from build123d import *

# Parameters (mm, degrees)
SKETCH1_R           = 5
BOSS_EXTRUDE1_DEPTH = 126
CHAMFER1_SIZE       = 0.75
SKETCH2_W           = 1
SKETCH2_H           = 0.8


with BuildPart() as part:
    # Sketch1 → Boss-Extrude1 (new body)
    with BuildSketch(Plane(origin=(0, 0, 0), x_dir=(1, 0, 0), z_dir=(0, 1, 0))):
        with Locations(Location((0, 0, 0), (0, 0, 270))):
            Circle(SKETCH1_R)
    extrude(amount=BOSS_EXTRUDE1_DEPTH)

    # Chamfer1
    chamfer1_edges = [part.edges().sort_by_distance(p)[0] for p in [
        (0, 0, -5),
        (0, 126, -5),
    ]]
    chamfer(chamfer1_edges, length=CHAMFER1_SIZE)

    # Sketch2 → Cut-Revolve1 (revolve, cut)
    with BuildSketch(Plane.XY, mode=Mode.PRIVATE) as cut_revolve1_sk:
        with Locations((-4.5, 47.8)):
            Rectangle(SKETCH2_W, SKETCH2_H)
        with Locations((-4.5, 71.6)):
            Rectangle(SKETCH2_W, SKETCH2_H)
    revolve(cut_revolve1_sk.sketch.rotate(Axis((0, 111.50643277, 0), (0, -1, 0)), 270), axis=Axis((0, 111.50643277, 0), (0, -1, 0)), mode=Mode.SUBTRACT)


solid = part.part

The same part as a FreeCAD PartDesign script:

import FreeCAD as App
import Part
import Sketcher
Q = App.Units.Quantity


def edges_at(feature, points):
    """Names of the edges that pass closest to the given points."""
    edges = feature.Shape.Edges
    near = lambda p: min(range(len(edges)), key=lambda i: edges[i].distToShape(Part.Vertex(*p))[0])
    return sorted({f"Edge{near(p) + 1}" for p in points})

doc = App.newDocument("Part")
params = doc.addObject("Spreadsheet::Sheet", "Params")
for row, (alias, value) in enumerate([
    ("sketch1_diameter", "10 mm"),
    ("pad1_length", "126 mm"),
    ("chamfer_size", "0.75 mm"),
    ("sketch2_width", "1 mm"),
    ("sketch2_height", "0.8 mm"),
    ("groove_angle", "360 deg"),
], start=1):
    params.set(f"A{row}", alias)
    params.set(f"B{row}", "=" + value)
    params.setAlias(f"B{row}", alias)

body = doc.addObject("PartDesign::Body", "Body")

# Sketch on XZ plane
sketch1 = body.newObject("Sketcher::SketchObject", "Sketch")
sketch1.AttachmentSupport = (doc.getObject("XZ_Plane"), [""])
sketch1.MapMode = "FlatFace"
sketch1.addGeometry(Part.Circle(App.Vector(0, 0, 0), App.Vector(0, 0, 1), 5), False)
sketch1.addConstraint(Sketcher.Constraint("Coincident", 0, 3, -1, 1))
sketch1.addConstraint(Sketcher.Constraint("Diameter", 0, Q("10 mm")))
sketch1.setExpression("Constraints[1]", "Params.sketch1_diameter")
pad1 = body.newObject("PartDesign::Pad", "Pad")
pad1.Profile = sketch1
pad1.setExpression("Length", "Params.pad1_length")
pad1.Reversed = True
doc.recompute()

chamfer = body.newObject("PartDesign::Chamfer", "Chamfer")
chamfer.Base = (pad1, edges_at(pad1, [(0, 0, -5), (0, 126, -5)]))
chamfer.setExpression("Size", "Params.chamfer_size")

# Sketch on XY plane
sketch2 = body.newObject("Sketcher::SketchObject", "Sketch001")
sketch2.AttachmentSupport = (doc.getObject("XY_Plane"), [""])
sketch2.MapMode = "FlatFace"
sketch2.addGeometry(Part.LineSegment(App.Vector(-5, 48.2, 0), App.Vector(-5, 47.4, 0)), False)
sketch2.addGeometry(Part.LineSegment(App.Vector(-5, 47.4, 0), App.Vector(-4, 47.4, 0)), False)
sketch2.addGeometry(Part.LineSegment(App.Vector(-4, 47.4, 0), App.Vector(-4, 48.2, 0)), False)
sketch2.addGeometry(Part.LineSegment(App.Vector(-4, 48.2, 0), App.Vector(-5, 48.2, 0)), False)
sketch2.addGeometry(Part.LineSegment(App.Vector(-5, 72, 0), App.Vector(-5, 71.2, 0)), False)
sketch2.addGeometry(Part.LineSegment(App.Vector(-5, 71.2, 0), App.Vector(-4, 71.2, 0)), False)
sketch2.addGeometry(Part.LineSegment(App.Vector(-4, 71.2, 0), App.Vector(-4, 72, 0)), False)
sketch2.addGeometry(Part.LineSegment(App.Vector(-4, 72, 0), App.Vector(-5, 72, 0)), False)
sketch2.addConstraint(Sketcher.Constraint("Coincident", 0, 2, 1, 1))
sketch2.addConstraint(Sketcher.Constraint("Coincident", 1, 2, 2, 1))
sketch2.addConstraint(Sketcher.Constraint("Coincident", 2, 2, 3, 1))
sketch2.addConstraint(Sketcher.Constraint("Coincident", 3, 2, 0, 1))
sketch2.addConstraint(Sketcher.Constraint("Coincident", 4, 2, 5, 1))
sketch2.addConstraint(Sketcher.Constraint("Coincident", 5, 2, 6, 1))
sketch2.addConstraint(Sketcher.Constraint("Coincident", 6, 2, 7, 1))
sketch2.addConstraint(Sketcher.Constraint("Coincident", 7, 2, 4, 1))
sketch2.addConstraint(Sketcher.Constraint("Vertical", 0))
sketch2.addConstraint(Sketcher.Constraint("Horizontal", 1))
sketch2.addConstraint(Sketcher.Constraint("Vertical", 2))
sketch2.addConstraint(Sketcher.Constraint("Horizontal", 3))
sketch2.addConstraint(Sketcher.Constraint("Vertical", 4))
sketch2.addConstraint(Sketcher.Constraint("Horizontal", 5))
sketch2.addConstraint(Sketcher.Constraint("Vertical", 6))
sketch2.addConstraint(Sketcher.Constraint("Horizontal", 7))
sketch2.addConstraint(Sketcher.Constraint("Vertical", 3, 2, 4, 2))
sketch2.addConstraint(Sketcher.Constraint("Vertical", 2, 2, 5, 2))
sketch2.addConstraint(Sketcher.Constraint("Equal", 2, 4))
sketch2.addConstraint(Sketcher.Constraint("DistanceX", 1, 1, 1, 2, Q("1 mm")))
sketch2.addConstraint(Sketcher.Constraint("DistanceY", 0, 2, 0, 1, Q("0.8 mm")))
sketch2.addConstraint(Sketcher.Constraint("DistanceX", 0, 2, -1, 1, Q("5 mm")))
sketch2.addConstraint(Sketcher.Constraint("DistanceY", -1, 1, 6, 2, Q("72 mm")))
sketch2.addConstraint(Sketcher.Constraint("DistanceY", 3, 2, 4, 2, Q("23 mm")))
sketch2.setExpression("Constraints[19]", "Params.sketch2_width")
sketch2.setExpression("Constraints[20]", "Params.sketch2_height")
groove = body.newObject("PartDesign::Groove", "Groove")
groove.Profile = sketch2
groove.ReferenceAxis = (sketch2, ["V_Axis"])
groove.setExpression("Angle", "Params.groove_angle")

doc.recompute()
